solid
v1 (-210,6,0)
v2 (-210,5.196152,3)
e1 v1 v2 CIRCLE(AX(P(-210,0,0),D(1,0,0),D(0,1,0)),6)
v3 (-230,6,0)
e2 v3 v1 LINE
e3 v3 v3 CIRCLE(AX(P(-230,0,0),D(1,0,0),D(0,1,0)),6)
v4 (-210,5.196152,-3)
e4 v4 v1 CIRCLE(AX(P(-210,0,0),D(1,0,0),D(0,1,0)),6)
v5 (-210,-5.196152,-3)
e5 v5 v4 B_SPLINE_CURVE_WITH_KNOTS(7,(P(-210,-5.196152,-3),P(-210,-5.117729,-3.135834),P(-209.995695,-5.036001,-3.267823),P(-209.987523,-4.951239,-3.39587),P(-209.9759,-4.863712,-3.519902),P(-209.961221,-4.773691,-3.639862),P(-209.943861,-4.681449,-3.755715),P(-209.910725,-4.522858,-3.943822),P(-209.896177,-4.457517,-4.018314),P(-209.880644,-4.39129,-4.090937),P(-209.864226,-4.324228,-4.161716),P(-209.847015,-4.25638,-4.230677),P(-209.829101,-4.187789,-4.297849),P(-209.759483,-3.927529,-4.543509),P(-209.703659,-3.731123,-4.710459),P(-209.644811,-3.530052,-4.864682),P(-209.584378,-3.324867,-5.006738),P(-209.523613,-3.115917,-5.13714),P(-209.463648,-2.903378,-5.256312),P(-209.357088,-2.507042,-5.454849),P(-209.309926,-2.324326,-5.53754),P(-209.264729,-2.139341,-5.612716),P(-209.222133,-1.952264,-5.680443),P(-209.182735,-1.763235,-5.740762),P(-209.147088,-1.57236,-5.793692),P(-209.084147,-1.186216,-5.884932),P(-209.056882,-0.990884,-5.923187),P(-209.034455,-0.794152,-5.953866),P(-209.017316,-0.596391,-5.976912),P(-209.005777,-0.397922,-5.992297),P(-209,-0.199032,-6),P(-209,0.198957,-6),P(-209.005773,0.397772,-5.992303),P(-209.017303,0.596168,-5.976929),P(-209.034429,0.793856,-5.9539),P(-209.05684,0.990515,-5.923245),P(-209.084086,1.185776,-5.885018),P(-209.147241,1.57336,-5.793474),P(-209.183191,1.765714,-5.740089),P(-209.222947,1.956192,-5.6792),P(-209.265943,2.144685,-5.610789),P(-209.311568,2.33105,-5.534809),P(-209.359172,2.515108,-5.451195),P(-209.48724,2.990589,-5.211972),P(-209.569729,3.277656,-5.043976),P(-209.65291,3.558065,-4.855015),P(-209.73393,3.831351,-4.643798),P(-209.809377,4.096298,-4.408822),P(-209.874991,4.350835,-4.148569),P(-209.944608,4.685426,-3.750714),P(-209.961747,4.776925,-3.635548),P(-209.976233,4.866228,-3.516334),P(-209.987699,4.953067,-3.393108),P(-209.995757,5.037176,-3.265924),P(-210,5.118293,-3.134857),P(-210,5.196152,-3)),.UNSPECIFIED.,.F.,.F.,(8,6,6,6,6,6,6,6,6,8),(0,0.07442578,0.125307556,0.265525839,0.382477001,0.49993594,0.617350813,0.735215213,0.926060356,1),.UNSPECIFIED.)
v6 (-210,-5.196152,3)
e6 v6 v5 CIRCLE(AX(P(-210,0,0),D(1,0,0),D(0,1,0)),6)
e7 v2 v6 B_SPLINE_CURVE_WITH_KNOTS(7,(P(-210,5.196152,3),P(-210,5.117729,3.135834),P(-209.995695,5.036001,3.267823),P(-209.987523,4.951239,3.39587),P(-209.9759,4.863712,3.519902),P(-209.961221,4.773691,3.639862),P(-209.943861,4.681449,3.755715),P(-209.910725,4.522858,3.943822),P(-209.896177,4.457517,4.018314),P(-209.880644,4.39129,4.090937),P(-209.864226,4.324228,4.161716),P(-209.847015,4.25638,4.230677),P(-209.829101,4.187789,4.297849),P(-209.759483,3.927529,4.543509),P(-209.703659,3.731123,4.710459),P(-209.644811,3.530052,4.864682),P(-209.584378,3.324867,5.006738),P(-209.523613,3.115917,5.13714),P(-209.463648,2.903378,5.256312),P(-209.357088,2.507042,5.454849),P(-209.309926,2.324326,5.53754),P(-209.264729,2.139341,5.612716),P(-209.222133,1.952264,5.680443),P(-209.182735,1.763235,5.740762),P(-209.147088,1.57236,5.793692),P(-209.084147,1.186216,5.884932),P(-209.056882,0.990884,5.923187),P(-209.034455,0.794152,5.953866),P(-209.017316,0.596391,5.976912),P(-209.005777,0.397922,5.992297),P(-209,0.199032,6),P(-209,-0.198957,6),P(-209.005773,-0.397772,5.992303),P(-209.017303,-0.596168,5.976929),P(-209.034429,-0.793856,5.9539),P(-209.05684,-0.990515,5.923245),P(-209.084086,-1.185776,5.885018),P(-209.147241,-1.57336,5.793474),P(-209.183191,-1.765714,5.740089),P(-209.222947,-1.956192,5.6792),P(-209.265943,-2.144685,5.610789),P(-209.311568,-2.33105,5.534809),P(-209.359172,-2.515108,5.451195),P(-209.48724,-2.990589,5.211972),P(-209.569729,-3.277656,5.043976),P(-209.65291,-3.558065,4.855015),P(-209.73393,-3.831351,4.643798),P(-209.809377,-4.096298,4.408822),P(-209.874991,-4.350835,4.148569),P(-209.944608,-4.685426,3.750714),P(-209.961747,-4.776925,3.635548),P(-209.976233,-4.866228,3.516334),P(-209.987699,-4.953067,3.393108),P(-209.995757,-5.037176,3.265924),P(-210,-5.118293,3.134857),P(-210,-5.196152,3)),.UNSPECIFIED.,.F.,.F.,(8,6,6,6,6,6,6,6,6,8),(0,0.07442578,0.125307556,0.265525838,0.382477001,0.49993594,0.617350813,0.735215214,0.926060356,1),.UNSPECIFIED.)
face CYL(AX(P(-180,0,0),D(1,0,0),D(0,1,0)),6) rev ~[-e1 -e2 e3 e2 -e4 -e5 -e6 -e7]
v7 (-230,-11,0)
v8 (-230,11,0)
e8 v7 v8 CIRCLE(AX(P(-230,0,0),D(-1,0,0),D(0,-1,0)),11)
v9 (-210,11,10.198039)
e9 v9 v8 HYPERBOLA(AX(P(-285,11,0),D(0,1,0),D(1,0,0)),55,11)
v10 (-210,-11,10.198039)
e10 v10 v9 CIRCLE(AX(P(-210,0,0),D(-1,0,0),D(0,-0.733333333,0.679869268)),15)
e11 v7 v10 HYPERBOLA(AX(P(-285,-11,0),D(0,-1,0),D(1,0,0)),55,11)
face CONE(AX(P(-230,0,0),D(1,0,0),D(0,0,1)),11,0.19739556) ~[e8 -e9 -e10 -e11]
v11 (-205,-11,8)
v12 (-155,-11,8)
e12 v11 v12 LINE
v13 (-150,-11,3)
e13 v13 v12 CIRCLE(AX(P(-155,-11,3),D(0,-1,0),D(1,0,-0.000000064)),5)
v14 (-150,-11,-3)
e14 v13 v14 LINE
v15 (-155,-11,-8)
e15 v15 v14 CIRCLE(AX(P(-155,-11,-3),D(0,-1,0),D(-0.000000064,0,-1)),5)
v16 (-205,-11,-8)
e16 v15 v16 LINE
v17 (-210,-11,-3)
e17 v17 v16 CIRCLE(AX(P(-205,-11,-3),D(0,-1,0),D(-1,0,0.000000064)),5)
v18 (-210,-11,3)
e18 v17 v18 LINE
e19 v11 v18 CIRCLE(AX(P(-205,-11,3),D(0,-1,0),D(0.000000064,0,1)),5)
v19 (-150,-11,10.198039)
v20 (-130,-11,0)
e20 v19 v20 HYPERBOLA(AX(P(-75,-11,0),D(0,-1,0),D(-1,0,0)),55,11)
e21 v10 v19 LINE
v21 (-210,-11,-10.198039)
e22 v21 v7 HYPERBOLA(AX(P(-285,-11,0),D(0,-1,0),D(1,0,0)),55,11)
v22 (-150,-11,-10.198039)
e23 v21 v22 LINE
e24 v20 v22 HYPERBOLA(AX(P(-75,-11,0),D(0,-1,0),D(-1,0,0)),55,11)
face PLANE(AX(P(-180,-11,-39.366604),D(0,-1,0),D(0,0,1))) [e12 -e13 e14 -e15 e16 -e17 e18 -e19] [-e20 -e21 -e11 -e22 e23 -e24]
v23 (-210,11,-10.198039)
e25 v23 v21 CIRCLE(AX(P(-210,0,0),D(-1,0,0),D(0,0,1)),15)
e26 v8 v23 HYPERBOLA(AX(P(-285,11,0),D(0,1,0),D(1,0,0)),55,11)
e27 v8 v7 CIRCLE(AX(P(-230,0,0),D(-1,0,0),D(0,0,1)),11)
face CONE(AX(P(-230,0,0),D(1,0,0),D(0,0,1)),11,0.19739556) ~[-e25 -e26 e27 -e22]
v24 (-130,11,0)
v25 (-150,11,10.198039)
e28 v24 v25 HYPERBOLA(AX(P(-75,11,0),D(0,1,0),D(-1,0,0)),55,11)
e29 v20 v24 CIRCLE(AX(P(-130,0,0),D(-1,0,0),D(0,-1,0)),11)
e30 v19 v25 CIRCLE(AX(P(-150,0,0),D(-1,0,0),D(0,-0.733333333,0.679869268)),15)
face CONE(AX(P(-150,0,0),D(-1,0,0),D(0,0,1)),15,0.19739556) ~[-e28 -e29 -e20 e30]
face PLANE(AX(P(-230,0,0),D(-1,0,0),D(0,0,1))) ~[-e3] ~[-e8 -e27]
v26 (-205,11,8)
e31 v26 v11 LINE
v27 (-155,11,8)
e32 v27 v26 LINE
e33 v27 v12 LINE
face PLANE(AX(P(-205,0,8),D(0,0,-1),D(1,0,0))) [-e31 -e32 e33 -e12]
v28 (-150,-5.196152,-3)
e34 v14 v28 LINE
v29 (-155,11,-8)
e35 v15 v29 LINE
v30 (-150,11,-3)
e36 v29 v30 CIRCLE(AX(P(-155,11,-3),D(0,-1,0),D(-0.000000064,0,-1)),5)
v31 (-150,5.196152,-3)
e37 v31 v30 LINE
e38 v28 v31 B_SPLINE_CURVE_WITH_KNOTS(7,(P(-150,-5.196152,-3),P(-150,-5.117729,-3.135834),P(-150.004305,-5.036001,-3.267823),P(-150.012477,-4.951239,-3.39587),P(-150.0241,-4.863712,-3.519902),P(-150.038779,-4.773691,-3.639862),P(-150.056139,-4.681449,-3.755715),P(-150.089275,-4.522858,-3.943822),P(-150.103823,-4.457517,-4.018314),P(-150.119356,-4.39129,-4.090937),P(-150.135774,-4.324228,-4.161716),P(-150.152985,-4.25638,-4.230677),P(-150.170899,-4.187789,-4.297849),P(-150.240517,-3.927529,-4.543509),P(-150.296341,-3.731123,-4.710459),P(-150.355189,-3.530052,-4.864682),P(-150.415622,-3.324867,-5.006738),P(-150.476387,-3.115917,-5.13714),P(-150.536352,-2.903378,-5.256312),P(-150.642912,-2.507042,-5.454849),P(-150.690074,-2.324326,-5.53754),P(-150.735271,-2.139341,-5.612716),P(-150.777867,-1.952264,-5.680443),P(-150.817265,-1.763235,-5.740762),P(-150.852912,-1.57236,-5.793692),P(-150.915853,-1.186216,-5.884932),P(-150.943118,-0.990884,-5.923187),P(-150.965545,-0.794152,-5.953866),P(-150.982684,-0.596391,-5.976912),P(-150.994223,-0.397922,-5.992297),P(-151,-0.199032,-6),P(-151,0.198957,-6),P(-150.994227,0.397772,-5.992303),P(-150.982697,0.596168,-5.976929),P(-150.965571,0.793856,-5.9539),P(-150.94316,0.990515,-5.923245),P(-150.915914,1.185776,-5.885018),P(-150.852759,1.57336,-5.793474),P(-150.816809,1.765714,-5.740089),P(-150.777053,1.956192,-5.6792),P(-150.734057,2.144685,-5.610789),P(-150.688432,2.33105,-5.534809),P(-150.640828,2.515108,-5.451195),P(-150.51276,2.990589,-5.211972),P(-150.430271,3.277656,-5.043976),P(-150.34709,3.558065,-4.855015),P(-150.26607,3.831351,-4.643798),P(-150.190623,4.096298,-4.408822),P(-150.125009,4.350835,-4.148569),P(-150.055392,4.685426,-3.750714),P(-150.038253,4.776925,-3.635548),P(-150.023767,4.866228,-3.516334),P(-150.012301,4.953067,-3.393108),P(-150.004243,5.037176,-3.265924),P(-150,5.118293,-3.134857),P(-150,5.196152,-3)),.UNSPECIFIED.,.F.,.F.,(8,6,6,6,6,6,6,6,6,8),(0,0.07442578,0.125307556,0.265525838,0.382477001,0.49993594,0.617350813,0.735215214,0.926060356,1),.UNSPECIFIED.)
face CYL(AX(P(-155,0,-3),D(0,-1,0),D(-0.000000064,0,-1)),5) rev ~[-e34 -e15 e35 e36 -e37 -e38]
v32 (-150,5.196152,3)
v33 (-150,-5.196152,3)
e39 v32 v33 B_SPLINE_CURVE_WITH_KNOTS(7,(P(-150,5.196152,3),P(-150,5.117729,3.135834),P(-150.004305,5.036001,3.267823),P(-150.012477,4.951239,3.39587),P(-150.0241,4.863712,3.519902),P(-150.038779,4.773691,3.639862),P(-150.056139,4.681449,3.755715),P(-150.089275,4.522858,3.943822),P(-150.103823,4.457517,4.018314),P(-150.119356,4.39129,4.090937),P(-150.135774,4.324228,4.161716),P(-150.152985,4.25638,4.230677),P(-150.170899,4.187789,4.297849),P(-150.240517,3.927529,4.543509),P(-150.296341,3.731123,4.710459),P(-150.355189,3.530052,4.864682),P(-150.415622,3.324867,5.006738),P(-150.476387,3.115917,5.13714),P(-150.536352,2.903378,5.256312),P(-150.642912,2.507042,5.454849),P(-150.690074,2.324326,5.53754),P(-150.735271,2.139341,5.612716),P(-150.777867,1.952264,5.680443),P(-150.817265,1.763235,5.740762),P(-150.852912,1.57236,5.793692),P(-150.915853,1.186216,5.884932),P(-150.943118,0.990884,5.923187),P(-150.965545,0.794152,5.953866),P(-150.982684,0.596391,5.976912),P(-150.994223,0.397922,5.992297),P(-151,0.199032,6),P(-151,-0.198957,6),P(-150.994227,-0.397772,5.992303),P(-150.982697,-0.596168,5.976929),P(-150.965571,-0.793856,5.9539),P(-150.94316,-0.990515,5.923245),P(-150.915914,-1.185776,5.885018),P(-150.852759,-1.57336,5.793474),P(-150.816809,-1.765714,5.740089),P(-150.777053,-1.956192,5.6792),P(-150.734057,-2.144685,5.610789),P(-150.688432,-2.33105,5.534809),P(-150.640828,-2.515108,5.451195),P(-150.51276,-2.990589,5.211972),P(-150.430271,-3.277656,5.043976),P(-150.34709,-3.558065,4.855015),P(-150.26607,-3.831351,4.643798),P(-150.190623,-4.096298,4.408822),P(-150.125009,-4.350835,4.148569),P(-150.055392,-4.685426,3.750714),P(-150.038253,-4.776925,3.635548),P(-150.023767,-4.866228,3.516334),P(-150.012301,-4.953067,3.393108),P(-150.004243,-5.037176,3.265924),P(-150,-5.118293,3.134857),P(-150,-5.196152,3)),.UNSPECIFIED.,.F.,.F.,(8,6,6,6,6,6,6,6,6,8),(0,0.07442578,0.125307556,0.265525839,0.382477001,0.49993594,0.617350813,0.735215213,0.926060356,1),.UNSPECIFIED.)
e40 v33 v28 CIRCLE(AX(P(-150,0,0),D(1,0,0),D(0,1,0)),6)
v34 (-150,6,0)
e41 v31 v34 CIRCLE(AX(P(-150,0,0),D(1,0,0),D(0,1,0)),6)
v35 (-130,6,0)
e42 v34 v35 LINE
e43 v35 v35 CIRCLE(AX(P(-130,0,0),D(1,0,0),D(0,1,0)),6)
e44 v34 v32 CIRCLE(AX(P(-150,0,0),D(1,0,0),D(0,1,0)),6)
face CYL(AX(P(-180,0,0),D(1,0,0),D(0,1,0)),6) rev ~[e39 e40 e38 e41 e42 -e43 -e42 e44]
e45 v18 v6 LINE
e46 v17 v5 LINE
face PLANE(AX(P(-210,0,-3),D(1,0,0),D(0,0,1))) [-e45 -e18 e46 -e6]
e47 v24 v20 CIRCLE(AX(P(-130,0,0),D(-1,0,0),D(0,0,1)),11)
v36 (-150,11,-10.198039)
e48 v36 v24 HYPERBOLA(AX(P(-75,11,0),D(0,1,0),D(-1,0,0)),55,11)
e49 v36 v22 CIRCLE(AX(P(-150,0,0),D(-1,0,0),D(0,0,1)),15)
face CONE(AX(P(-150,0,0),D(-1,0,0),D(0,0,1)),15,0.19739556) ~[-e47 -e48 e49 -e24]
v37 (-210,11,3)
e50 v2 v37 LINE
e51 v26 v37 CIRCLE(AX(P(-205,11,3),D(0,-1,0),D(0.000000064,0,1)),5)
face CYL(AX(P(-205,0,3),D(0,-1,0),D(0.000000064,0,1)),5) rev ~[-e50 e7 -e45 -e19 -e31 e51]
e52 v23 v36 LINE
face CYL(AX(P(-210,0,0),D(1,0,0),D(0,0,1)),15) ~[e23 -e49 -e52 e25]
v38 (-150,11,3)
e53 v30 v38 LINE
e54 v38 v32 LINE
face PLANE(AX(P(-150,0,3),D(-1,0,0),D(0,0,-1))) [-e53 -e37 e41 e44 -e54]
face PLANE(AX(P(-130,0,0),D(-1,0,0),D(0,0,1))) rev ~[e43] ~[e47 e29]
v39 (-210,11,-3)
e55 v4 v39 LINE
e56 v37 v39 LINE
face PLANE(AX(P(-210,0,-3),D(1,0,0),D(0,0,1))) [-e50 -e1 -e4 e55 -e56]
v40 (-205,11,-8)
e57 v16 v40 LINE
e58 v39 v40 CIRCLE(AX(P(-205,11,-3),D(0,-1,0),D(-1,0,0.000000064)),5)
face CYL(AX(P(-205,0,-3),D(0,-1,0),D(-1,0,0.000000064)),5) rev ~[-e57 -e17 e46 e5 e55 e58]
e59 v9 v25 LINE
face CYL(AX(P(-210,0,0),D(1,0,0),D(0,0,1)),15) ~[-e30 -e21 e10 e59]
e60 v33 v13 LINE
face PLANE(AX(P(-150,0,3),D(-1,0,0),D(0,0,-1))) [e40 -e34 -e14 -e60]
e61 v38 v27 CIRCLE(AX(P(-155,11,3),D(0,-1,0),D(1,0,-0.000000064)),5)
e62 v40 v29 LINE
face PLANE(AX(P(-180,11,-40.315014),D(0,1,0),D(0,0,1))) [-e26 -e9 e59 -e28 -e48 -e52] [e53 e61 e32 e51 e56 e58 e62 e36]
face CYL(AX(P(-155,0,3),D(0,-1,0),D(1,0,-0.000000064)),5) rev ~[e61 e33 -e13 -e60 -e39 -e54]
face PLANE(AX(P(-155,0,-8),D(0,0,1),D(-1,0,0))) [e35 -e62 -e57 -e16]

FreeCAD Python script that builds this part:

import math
import FreeCAD as App
import Part
import Sketcher

V = App.Vector


def add_polygon(sketch, points):
    """Adds a closed chain of lines whose ends are joined by coincident constraints."""
    first, n = sketch.GeometryCount, len(points)
    for a, b in zip(points, points[1:] + points[:1]):
        sketch.addGeometry(Part.LineSegment(App.Vector(*a, 0), App.Vector(*b, 0)), False)
    for i in range(n):
        sketch.addConstraint(Sketcher.Constraint("Coincident", first + i, 2, first + (i + 1) % n, 1))

doc = App.newDocument("Part")
body = doc.addObject("PartDesign::Body", "Body")

sketch1 = doc.addObject("Sketcher::SketchObject", "Sketch")
body.addObject(sketch1)
sketch1.AttachmentSupport = (doc.YZ_Plane, [""])
sketch1.MapMode = "FlatFace"
sketch1.addGeometry(Part.Circle(V(0, 0, 0), V(0, 0, 1), 6), False)
sketch1.addConstraint([
    Sketcher.Constraint("Coincident", 0, 3, -1, 1),
    Sketcher.Constraint("Diameter", 0, 12.0),
])
pad1 = doc.addObject("PartDesign::Pad", "Pad")
body.addObject(pad1)
pad1.Profile = sketch1
pad1.Length = 300
pad1.Midplane = True
body2 = doc.addObject("PartDesign::Body", "Body001")

sketch2 = doc.addObject("Sketcher::SketchObject", "Sketch001")
body2.addObject(sketch2)
sketch2.AttachmentSupport = (doc.getObject("XZ_Plane001"), [""])
sketch2.MapMode = "FlatFace"
sketch2.addGeometry([
    Part.LineSegment(V(30, -3, 0), V(30, 3, 0)),
    Part.ArcOfCircle(Part.Circle(V(25, 3, 0), V(0, 0, 1), 5), math.radians(0), math.radians(90)),
    Part.LineSegment(V(25, 8, 0), V(-25, 8, 0)),
    Part.ArcOfCircle(Part.Circle(V(-25, 3, 0), V(0, 0, 1), 5), math.radians(90), math.radians(180)),
    Part.LineSegment(V(-30, 3, 0), V(-30, -3, 0)),
    Part.ArcOfCircle(Part.Circle(V(-25, -3, 0), V(0, 0, 1), 5), math.radians(180), math.radians(270)),
    Part.LineSegment(V(-25, -8, 0), V(25, -8, 0)),
    Part.ArcOfCircle(Part.Circle(V(25, -3, 0), V(0, 0, 1), 5), math.radians(-90), math.radians(0)),
], False)
sketch2.addConstraint([
    Sketcher.Constraint("Tangent", 0, 2, 1, 1),
    Sketcher.Constraint("Tangent", 1, 2, 2, 1),
    Sketcher.Constraint("Tangent", 2, 2, 3, 1),
    Sketcher.Constraint("Tangent", 3, 2, 4, 1),
    Sketcher.Constraint("Tangent", 4, 2, 5, 1),
    Sketcher.Constraint("Tangent", 5, 2, 6, 1),
    Sketcher.Constraint("Tangent", 6, 2, 7, 1),
    Sketcher.Constraint("Tangent", 7, 2, 0, 1),
    Sketcher.Constraint("Vertical", 0),
    Sketcher.Constraint("Horizontal", 2),
    Sketcher.Constraint("Vertical", 4),
    Sketcher.Constraint("Horizontal", 6),
    Sketcher.Constraint("Equal", 1, 3),
    Sketcher.Constraint("Equal", 3, 5),
    Sketcher.Constraint("Equal", 5, 7),
    Sketcher.Constraint("Symmetric", 1, 3, 5, 3, -1, 1),
    Sketcher.Constraint("Radius", 1, 5.0),
    Sketcher.Constraint("DistanceX", 2, 2, 2, 1, 50.0),
    Sketcher.Constraint("DistanceY", 0, 1, 0, 2, 6.0),
])
pad2 = doc.addObject("PartDesign::Pad", "Pad001")
body2.addObject(pad2)
pad2.Profile = sketch2
pad2.Length = 60
pad2.Midplane = True
body3 = doc.addObject("PartDesign::Body", "Body002")
body3.AllowCompound = True

sketch3 = doc.addObject("Sketcher::SketchObject", "Sketch002")
body3.addObject(sketch3)
sketch3.AttachmentSupport = (doc.getObject("YZ_Plane002"), [""])
sketch3.MapMode = "FlatFace"
add_polygon(sketch3, [(-26, 40), (-26, -39), (-11, -39), (-11, 40)])
add_polygon(sketch3, [(11, 40), (11, -40), (26, -40), (26, 40)])
sketch3.addConstraint([
    Sketcher.Constraint("Vertical", 0),
    Sketcher.Constraint("Horizontal", 1),
    Sketcher.Constraint("Vertical", 2),
    Sketcher.Constraint("Horizontal", 3),
    Sketcher.Constraint("Vertical", 4),
    Sketcher.Constraint("Horizontal", 5),
    Sketcher.Constraint("Vertical", 6),
    Sketcher.Constraint("Horizontal", 7),
    Sketcher.Constraint("Symmetric", 3, 2, 6, 2, -2),
    Sketcher.Constraint("Equal", 3, 5),
    Sketcher.Constraint("DistanceX", 1, 1, 1, 2, 15.0),
    Sketcher.Constraint("DistanceY", 4, 2, 4, 1, 80.0),
    Sketcher.Constraint("DistanceX", 0, 2, -1, 1, 26.0),
    Sketcher.Constraint("DistanceY", 0, 2, 0, 1, 79.05159),
    Sketcher.Constraint("DistanceY", 0, 2, -1, 1, 39.366604),
])
pad3 = doc.addObject("PartDesign::Pad", "Pad002")
body3.addObject(pad3)
pad3.Profile = sketch3
pad3.Length = 300
pad3.Midplane = True
body4 = doc.addObject("PartDesign::Body", "Body003")

sketch4 = doc.addObject("Sketcher::SketchObject", "Sketch003")
body4.addObject(sketch4)
sketch4.AttachmentSupport = (doc.getObject("XZ_Plane003"), [""])
sketch4.MapMode = "FlatFace"
add_polygon(sketch4, [(-50, 11), (-50, 0), (50, 0), (50, 11), (30, 15), (-30, 15)])
sketch4.addConstraint([
    Sketcher.Constraint("Vertical", 0),
    Sketcher.Constraint("Horizontal", 1),
    Sketcher.Constraint("Vertical", 2),
    Sketcher.Constraint("Horizontal", 4),
    Sketcher.Constraint("Symmetric", 0, 2, 1, 2, -1, 1),
    Sketcher.Constraint("Horizontal", 2, 2, 5, 2),
    Sketcher.Constraint("Equal", 3, 5),
    Sketcher.Constraint("DistanceX", 1, 1, 1, 2, 100.0),
    Sketcher.Constraint("DistanceX", 4, 2, 4, 1, 60.0),
    Sketcher.Constraint("DistanceY", 0, 2, 0, 1, 11.0),
    Sketcher.Constraint("DistanceY", -1, 1, 3, 2, 15.0),
])
revolution = doc.addObject("PartDesign::Revolution", "Revolution")
body4.addObject(revolution)
revolution.Profile = sketch4
revolution.ReferenceAxis = (sketch4, ["H_Axis"])
revolution.Angle = 360
doc.recompute()

boolean = doc.addObject("PartDesign::Boolean", "Boolean")
body4.addObject(boolean)
boolean.Type = "Cut"
boolean.addObjects([body3])
doc.recompute()

boolean2 = doc.addObject("PartDesign::Boolean", "Boolean001")
body4.addObject(boolean2)
boolean2.Type = "Cut"
boolean2.addObjects([body2])
doc.recompute()

boolean3 = doc.addObject("PartDesign::Boolean", "Boolean002")
body4.addObject(boolean3)
boolean3.Type = "Cut"
boolean3.addObjects([body])
body5 = doc.addObject("PartDesign::Body", "Body004")
doc.recompute()

body4.Placement = App.Placement(V(-180, 0, 0), App.Rotation(V(0, 0, 1), 0))
boolean4 = doc.addObject("PartDesign::Boolean", "Boolean003")
body5.addObject(boolean4)
boolean4.Type = "Fuse"
boolean4.addObjects([body4])

doc.recompute()
